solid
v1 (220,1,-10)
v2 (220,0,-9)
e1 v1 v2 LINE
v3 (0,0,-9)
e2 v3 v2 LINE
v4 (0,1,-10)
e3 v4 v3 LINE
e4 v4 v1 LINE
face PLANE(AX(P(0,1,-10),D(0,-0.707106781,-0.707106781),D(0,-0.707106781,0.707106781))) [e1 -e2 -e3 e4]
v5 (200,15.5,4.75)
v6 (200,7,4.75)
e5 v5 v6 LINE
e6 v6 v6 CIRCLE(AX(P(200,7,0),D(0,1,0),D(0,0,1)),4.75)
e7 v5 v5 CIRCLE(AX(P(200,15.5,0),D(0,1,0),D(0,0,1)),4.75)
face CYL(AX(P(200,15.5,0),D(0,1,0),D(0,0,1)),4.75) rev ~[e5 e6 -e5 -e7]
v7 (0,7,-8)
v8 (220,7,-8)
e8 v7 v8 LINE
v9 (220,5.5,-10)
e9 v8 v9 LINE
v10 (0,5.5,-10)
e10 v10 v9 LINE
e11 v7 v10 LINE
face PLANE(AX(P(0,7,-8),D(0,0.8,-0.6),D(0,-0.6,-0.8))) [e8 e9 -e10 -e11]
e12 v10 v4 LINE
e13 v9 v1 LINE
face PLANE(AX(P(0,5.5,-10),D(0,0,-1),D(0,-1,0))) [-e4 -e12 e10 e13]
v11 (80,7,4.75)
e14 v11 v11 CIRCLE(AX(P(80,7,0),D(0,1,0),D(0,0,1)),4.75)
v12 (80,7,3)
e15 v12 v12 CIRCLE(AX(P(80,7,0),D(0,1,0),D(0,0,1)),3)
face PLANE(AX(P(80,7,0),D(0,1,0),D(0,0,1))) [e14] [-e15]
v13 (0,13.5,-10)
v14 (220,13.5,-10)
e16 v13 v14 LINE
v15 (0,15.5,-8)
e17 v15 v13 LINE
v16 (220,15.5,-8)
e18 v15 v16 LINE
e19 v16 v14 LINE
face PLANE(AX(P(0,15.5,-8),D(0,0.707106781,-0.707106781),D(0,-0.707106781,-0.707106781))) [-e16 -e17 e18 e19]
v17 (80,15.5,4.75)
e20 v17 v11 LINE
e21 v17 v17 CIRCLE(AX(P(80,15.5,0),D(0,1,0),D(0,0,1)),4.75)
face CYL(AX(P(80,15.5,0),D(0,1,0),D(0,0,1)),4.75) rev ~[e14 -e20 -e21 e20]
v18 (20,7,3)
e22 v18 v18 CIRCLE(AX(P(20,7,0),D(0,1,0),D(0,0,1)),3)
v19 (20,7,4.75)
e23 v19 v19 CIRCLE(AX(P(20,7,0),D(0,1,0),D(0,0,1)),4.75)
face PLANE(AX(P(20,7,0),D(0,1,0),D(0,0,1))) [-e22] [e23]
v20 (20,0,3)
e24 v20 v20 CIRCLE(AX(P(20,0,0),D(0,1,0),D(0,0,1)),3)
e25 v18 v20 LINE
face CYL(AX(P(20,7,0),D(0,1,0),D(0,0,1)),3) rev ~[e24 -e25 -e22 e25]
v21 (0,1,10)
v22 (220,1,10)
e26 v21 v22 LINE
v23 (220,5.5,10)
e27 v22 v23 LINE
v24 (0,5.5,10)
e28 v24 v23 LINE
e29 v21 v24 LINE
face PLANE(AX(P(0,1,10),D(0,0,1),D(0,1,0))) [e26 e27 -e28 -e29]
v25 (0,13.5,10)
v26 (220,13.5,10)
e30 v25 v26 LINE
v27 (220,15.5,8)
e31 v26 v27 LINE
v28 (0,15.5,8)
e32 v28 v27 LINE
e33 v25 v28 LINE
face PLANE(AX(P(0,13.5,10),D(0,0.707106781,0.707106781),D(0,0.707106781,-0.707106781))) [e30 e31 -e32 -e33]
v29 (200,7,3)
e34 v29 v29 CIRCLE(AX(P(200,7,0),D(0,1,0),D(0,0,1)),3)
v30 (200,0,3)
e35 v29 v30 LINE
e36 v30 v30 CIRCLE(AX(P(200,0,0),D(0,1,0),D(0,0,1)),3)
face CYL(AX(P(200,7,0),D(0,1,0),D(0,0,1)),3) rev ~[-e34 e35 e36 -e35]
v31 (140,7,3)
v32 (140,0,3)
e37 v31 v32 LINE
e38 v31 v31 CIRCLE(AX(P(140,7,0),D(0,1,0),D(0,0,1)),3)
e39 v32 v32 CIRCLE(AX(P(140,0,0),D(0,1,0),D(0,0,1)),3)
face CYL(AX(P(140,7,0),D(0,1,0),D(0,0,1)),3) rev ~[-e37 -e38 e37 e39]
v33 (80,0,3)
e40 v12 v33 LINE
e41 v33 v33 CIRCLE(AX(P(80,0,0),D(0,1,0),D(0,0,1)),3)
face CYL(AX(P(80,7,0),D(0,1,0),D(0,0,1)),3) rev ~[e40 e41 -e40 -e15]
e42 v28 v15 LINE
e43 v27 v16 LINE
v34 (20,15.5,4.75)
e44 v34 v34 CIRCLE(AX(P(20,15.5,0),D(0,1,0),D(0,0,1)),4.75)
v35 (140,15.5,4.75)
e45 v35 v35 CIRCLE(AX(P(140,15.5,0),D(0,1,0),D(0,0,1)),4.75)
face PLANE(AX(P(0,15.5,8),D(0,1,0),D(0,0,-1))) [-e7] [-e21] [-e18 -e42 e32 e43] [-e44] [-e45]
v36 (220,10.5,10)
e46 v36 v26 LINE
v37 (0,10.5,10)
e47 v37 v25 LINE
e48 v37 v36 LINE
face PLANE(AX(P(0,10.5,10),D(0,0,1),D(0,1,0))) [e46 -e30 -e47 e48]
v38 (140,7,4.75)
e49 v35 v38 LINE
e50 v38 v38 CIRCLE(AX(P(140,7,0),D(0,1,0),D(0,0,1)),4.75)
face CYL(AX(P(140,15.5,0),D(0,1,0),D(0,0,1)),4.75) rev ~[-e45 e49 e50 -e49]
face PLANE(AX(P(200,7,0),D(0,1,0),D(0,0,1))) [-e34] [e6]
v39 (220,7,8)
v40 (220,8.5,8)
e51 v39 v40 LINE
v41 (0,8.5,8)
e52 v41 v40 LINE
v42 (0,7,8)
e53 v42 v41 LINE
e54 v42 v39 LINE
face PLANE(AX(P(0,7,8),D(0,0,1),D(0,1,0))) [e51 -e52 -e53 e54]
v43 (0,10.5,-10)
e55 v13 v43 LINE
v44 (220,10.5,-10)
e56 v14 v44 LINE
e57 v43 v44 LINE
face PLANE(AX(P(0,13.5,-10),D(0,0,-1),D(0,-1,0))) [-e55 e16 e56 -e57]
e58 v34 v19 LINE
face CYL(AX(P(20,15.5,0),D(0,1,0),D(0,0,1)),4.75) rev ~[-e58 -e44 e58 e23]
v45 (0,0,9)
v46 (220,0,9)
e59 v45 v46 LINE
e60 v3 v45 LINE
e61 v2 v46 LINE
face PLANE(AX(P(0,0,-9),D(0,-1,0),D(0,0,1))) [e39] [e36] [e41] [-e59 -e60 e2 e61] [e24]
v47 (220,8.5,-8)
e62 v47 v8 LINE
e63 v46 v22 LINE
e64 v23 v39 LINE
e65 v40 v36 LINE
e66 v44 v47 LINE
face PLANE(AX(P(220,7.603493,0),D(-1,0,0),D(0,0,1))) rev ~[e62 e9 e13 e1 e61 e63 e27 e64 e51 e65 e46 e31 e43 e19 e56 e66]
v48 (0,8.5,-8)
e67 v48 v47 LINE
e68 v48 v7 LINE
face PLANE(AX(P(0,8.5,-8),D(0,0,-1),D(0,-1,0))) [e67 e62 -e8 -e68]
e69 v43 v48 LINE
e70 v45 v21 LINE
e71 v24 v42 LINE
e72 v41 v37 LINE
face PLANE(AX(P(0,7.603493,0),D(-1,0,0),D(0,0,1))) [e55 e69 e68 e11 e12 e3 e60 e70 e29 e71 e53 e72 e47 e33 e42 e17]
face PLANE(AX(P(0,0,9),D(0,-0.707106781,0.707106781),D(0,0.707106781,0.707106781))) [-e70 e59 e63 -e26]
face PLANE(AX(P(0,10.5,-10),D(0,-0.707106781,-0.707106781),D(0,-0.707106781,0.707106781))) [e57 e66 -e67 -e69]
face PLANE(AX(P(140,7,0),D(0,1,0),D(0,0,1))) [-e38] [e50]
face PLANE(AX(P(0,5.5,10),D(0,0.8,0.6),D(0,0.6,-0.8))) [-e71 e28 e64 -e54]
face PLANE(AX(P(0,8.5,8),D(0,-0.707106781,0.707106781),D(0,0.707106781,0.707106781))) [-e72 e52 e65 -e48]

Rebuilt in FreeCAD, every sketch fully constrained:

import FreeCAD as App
import Part
import Sketcher

V = App.Vector
Q = App.Units.Quantity

doc = App.newDocument("Part")
body = doc.addObject("PartDesign::Body", "Body")

# Sketch on YZ plane
sketch1 = body.newObject("Sketcher::SketchObject", "Sketch")
sketch1.AttachmentSupport = (doc.getObject("YZ_Plane"), [""])
sketch1.MapMode = "FlatFace"
sketch1.addGeometry([
    Part.LineSegment(V(0, 9, 0), V(0, -9, 0)),  # 0
    Part.LineSegment(V(0, -9, 0), V(1, -10, 0)),  # 1
    Part.LineSegment(V(1, -10, 0), V(5.5, -10, 0)),  # 2
    Part.LineSegment(V(5.5, -10, 0), V(7, -8, 0)),  # 3
    Part.LineSegment(V(7, -8, 0), V(8.5, -8, 0)),  # 4
    Part.LineSegment(V(8.5, -8, 0), V(10.5, -10, 0)),  # 5
    Part.LineSegment(V(10.5, -10, 0), V(13.5, -10, 0)),  # 6
    Part.LineSegment(V(13.5, -10, 0), V(15.5, -8, 0)),  # 7
    Part.LineSegment(V(15.5, -8, 0), V(15.5, 8, 0)),  # 8
    Part.LineSegment(V(15.5, 8, 0), V(13.5, 10, 0)),  # 9
    Part.LineSegment(V(13.5, 10, 0), V(10.5, 10, 0)),  # 10
    Part.LineSegment(V(10.5, 10, 0), V(8.5, 8, 0)),  # 11
    Part.LineSegment(V(8.5, 8, 0), V(7, 8, 0)),  # 12
    Part.LineSegment(V(7, 8, 0), V(5.5, 10, 0)),  # 13
    Part.LineSegment(V(5.5, 10, 0), V(1, 10, 0)),  # 14
    Part.LineSegment(V(1, 10, 0), V(0, 9, 0)),  # 15
], False)
sketch1.addConstraint([
    Sketcher.Constraint("Coincident", 0, 2, 1, 1),
    Sketcher.Constraint("Coincident", 1, 2, 2, 1),
    Sketcher.Constraint("Coincident", 2, 2, 3, 1),
    Sketcher.Constraint("Coincident", 3, 2, 4, 1),
    Sketcher.Constraint("Coincident", 4, 2, 5, 1),
    Sketcher.Constraint("Coincident", 5, 2, 6, 1),
    Sketcher.Constraint("Coincident", 6, 2, 7, 1),
    Sketcher.Constraint("Coincident", 7, 2, 8, 1),
    Sketcher.Constraint("Coincident", 8, 2, 9, 1),
    Sketcher.Constraint("Coincident", 9, 2, 10, 1),
    Sketcher.Constraint("Coincident", 10, 2, 11, 1),
    Sketcher.Constraint("Coincident", 11, 2, 12, 1),
    Sketcher.Constraint("Coincident", 12, 2, 13, 1),
    Sketcher.Constraint("Coincident", 13, 2, 14, 1),
    Sketcher.Constraint("Coincident", 14, 2, 15, 1),
    Sketcher.Constraint("Coincident", 15, 2, 0, 1),
    Sketcher.Constraint("Vertical", 0),
    Sketcher.Constraint("Horizontal", 2),
    Sketcher.Constraint("Horizontal", 4),
    Sketcher.Constraint("Horizontal", 6),
    Sketcher.Constraint("Vertical", 8),
    Sketcher.Constraint("Horizontal", 10),
    Sketcher.Constraint("Horizontal", 12),
    Sketcher.Constraint("Horizontal", 14),
    Sketcher.Constraint("Symmetric", 0, 2, 15, 2, -1, 1),
    Sketcher.Constraint("Symmetric", 6, 2, 9, 2, -1),
    Sketcher.Constraint("Symmetric", 4, 2, 11, 2, -1),
    Sketcher.Constraint("Symmetric", 2, 2, 13, 2, -1),
    Sketcher.Constraint("Parallel", 1, 5),
    Sketcher.Constraint("Perpendicular", 5, 7),
    Sketcher.Constraint("Perpendicular", 7, 9),
    Sketcher.Constraint("Perpendicular", 9, 11),
    Sketcher.Constraint("Parallel", 11, 15),
    Sketcher.Constraint("Horizontal", 2, 2, 5, 2),
    Sketcher.Constraint("Horizontal", 4, 2, 7, 2),
    Sketcher.Constraint("Horizontal", 8, 2, 11, 2),
    Sketcher.Constraint("Vertical", 3, 2, 12, 2),
    Sketcher.Constraint("DistanceX", 6, 1, 6, 2, Q("3 mm")),
    Sketcher.Constraint("DistanceY", 0, 2, 0, 1, Q("18 mm")),
    Sketcher.Constraint("DistanceY", 8, 1, 8, 2, Q("16 mm")),
    Sketcher.Constraint("DistanceX", 2, 1, 2, 2, Q("4.5 mm")),
    Sketcher.Constraint("DistanceX", 4, 1, 4, 2, Q("1.5 mm")),
    Sketcher.Constraint("DistanceX", -1, 1, 1, 2, Q("1 mm")),
    Sketcher.Constraint("DistanceX", -1, 1, 3, 2, Q("7 mm")),
])
pad1 = body.newObject("PartDesign::Pad", "Pad")
pad1.Profile = sketch1
pad1.Length = 220

# Sketch on XZ plane
sketch2 = body.newObject("Sketcher::SketchObject", "Sketch001")
sketch2.AttachmentSupport = (doc.getObject("XZ_Plane"), [""])
sketch2.MapMode = "FlatFace"
sketch2.AttachmentOffset = App.Placement(V(0, 0, -15.5), App.Rotation())
sketch2.addGeometry(Part.Circle(V(20, 0, 0), V(0, 0, 1), 4.75), False)
sketch2.addConstraint([
    Sketcher.Constraint("PointOnObject", 0, 3, -1),
    Sketcher.Constraint("Diameter", 0, Q("9.5 mm")),
    Sketcher.Constraint("DistanceX", -1, 1, 0, 3, Q("20 mm")),
])
pocket1 = body.newObject("PartDesign::Pocket", "Pocket")
pocket1.Profile = sketch2
pocket1.Length = 8.5
pocket1.Reversed = True

# Sketch on XZ plane
sketch3 = body.newObject("Sketcher::SketchObject", "Sketch002")
sketch3.AttachmentSupport = (doc.getObject("XZ_Plane"), [""])
sketch3.MapMode = "FlatFace"
sketch3.AttachmentOffset = App.Placement(V(0, 0, -7), App.Rotation())
sketch3.addGeometry(Part.Circle(V(20, 0, 0), V(0, 0, 1), 3), False)
sketch3.addConstraint([
    Sketcher.Constraint("PointOnObject", 0, 3, -1),
    Sketcher.Constraint("Diameter", 0, Q("6 mm")),
    Sketcher.Constraint("DistanceX", -1, 1, 0, 3, Q("20 mm")),
])
pocket2 = body.newObject("PartDesign::Pocket", "Pocket001")
pocket2.Profile = sketch3
pocket2.Type = "ThroughAll"
pocket2.Reversed = True
doc.recompute()

linearpattern = body.newObject("PartDesign::LinearPattern", "LinearPattern")
linearpattern.Originals = [pocket1, pocket2]
linearpattern.Direction = (doc.getObject("X_Axis"), [""])
linearpattern.Mode = "offset"
linearpattern.Offset = 60
linearpattern.Occurrences = 4
body.Tip = linearpattern

doc.recompute()
